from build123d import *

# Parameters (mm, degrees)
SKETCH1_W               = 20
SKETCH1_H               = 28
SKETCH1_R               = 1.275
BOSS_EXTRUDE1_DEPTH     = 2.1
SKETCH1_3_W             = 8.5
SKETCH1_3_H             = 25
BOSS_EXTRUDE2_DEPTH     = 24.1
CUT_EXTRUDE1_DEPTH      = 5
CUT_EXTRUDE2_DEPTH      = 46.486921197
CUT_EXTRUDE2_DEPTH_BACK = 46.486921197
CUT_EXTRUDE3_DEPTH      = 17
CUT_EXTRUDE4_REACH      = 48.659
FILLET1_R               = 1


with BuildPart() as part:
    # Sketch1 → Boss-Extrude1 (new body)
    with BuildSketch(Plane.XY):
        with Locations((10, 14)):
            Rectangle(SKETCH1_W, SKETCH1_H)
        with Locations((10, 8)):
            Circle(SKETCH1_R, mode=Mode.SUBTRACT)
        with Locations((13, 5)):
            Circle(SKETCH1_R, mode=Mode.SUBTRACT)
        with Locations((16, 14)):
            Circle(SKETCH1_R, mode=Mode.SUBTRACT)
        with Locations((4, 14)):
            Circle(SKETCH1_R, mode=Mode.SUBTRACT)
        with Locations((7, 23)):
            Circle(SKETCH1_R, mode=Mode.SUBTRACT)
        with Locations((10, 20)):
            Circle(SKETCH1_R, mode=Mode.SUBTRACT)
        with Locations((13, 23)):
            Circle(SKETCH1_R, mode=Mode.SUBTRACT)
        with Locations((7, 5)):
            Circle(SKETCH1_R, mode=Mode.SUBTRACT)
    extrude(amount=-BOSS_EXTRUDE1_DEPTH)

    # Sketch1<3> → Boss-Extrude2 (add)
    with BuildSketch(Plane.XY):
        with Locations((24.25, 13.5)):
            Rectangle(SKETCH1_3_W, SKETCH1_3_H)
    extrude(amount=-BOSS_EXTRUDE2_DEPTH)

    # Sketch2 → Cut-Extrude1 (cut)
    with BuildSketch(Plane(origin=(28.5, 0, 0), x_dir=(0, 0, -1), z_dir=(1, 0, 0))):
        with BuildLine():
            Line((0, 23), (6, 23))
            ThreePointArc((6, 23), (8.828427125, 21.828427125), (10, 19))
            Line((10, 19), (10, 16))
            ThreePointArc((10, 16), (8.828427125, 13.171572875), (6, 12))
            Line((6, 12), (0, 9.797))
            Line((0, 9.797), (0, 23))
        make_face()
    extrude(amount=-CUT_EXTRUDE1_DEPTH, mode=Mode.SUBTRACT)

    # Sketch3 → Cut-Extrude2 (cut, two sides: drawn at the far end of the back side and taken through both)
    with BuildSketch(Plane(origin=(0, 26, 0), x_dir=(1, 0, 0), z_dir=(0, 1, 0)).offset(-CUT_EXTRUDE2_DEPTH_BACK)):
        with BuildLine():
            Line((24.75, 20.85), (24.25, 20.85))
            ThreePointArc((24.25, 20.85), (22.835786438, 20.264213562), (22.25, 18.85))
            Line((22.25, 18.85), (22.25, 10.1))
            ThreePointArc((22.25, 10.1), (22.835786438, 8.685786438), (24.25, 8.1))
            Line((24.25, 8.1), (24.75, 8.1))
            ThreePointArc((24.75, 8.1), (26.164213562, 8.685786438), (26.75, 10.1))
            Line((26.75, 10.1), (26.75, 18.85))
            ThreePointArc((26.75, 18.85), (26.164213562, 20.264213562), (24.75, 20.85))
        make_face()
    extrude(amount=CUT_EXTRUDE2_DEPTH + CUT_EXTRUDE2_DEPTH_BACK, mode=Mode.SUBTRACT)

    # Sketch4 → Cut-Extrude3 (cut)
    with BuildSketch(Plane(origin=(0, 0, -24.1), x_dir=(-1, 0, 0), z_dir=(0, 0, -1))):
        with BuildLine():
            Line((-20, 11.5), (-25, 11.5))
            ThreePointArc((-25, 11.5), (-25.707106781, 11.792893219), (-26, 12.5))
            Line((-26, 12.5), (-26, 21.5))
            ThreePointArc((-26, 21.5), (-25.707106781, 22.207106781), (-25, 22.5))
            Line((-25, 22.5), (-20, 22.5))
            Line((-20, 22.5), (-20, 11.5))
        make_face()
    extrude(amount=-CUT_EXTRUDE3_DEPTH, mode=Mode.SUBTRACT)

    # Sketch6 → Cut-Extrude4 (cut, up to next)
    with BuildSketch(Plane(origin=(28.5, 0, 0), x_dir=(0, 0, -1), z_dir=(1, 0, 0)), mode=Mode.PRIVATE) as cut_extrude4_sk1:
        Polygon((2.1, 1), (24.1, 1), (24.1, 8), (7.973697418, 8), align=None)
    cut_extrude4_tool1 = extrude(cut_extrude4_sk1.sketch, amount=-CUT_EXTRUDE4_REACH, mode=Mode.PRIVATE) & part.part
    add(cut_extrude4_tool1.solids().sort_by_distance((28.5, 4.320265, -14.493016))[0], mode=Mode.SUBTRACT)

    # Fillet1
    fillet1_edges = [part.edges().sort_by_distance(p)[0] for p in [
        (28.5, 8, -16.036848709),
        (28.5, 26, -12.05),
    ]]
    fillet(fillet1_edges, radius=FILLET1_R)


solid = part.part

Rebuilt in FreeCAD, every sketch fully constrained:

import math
import FreeCAD as App
import Part
import Sketcher

V = App.Vector
Q = App.Units.Quantity


def edges_at(feature, points):
    """Names of the edges that pass closest to the given points."""
    edges = feature.Shape.Edges
    near = lambda p: min(range(len(edges)), key=lambda i: edges[i].distToShape(Part.Vertex(*p))[0])
    return sorted({f"Edge{near(p) + 1}" for p in points})


def add_polygon(sketch, points):
    """Adds a closed chain of lines whose ends are joined by coincident constraints."""
    first, n = sketch.GeometryCount, len(points)
    for a, b in zip(points, points[1:] + points[:1]):
        sketch.addGeometry(Part.LineSegment(App.Vector(*a, 0), App.Vector(*b, 0)), False)
    for i in range(n):
        sketch.addConstraint(Sketcher.Constraint("Coincident", first + i, 2, first + (i + 1) % n, 1))

doc = App.newDocument("Part")
body = doc.addObject("PartDesign::Body", "Body")

# Sketch on XY plane
sketch1 = body.newObject("Sketcher::SketchObject", "Sketch")
sketch1.AttachmentSupport = (doc.getObject("XY_Plane"), [""])
sketch1.MapMode = "FlatFace"
add_polygon(sketch1, [(0, 28), (0, 0), (20, 0), (20, 28)])  # lines 0-3
sketch1.addGeometry(Part.Circle(V(7, 5, 0), V(0, 0, 1), 1.3), False)  # 4
sketch1.addGeometry(Part.Circle(V(10, 8, 0), V(0, 0, 1), 1.3), False)  # 5
sketch1.addGeometry(Part.Circle(V(13, 5, 0), V(0, 0, 1), 1.3), False)  # 6
sketch1.addGeometry(Part.Circle(V(4, 14, 0), V(0, 0, 1), 1.3), False)  # 7
sketch1.addGeometry(Part.Circle(V(10, 20, 0), V(0, 0, 1), 1.3), False)  # 8
sketch1.addGeometry(Part.Circle(V(7, 23, 0), V(0, 0, 1), 1.3), False)  # 9
sketch1.addGeometry(Part.Circle(V(16, 14, 0), V(0, 0, 1), 1.3), False)  # 10
sketch1.addGeometry(Part.Circle(V(13, 23, 0), V(0, 0, 1), 1.3), False)  # 11
sketch1.addConstraint(Sketcher.Constraint("Vertical", 0))
sketch1.addConstraint(Sketcher.Constraint("Horizontal", 1))
sketch1.addConstraint(Sketcher.Constraint("Vertical", 2))
sketch1.addConstraint(Sketcher.Constraint("Horizontal", 3))
sketch1.addConstraint(Sketcher.Constraint("Coincident", 0, 2, -1, 1))
sketch1.addConstraint(Sketcher.Constraint("Equal", 4, 5))
sketch1.addConstraint(Sketcher.Constraint("Equal", 5, 6))
sketch1.addConstraint(Sketcher.Constraint("Equal", 6, 7))
sketch1.addConstraint(Sketcher.Constraint("Equal", 7, 8))
sketch1.addConstraint(Sketcher.Constraint("Equal", 8, 9))
sketch1.addConstraint(Sketcher.Constraint("Equal", 9, 10))
sketch1.addConstraint(Sketcher.Constraint("Equal", 10, 11))
sketch1.addConstraint(Sketcher.Constraint("Horizontal", 4, 3, 6, 3))
sketch1.addConstraint(Sketcher.Constraint("Horizontal", 7, 3, 10, 3))
sketch1.addConstraint(Sketcher.Constraint("Horizontal", 9, 3, 11, 3))
sketch1.addConstraint(Sketcher.Constraint("Vertical", 5, 3, 8, 3))
sketch1.addConstraint(Sketcher.Constraint("Vertical", 4, 3, 9, 3))
sketch1.addConstraint(Sketcher.Constraint("Vertical", 6, 3, 11, 3))
sketch1.addConstraint(Sketcher.Constraint("Diameter", 4, Q("2.55 mm")))
sketch1.addConstraint(Sketcher.Constraint("DistanceX", 1, 1, 1, 2, Q("20 mm")))
sketch1.addConstraint(Sketcher.Constraint("DistanceY", 0, 2, 0, 1, Q("28 mm")))
sketch1.addConstraint(Sketcher.Constraint("DistanceX", -1, 1, 4, 3, Q("7 mm")))
sketch1.addConstraint(Sketcher.Constraint("DistanceY", -1, 1, 4, 3, Q("5 mm")))
sketch1.addConstraint(Sketcher.Constraint("DistanceX", -1, 1, 5, 3, Q("10 mm")))
sketch1.addConstraint(Sketcher.Constraint("DistanceY", -1, 1, 5, 3, Q("8 mm")))
sketch1.addConstraint(Sketcher.Constraint("DistanceX", -1, 1, 6, 3, Q("13 mm")))
sketch1.addConstraint(Sketcher.Constraint("DistanceX", -1, 1, 7, 3, Q("4 mm")))
sketch1.addConstraint(Sketcher.Constraint("DistanceY", -1, 1, 7, 3, Q("14 mm")))
sketch1.addConstraint(Sketcher.Constraint("DistanceY", -1, 1, 8, 3, Q("20 mm")))
sketch1.addConstraint(Sketcher.Constraint("DistanceY", -1, 1, 9, 3, Q("23 mm")))
sketch1.addConstraint(Sketcher.Constraint("DistanceX", -1, 1, 10, 3, Q("16 mm")))
pad1 = body.newObject("PartDesign::Pad", "Pad")
pad1.Profile = sketch1
pad1.Length = 2.1
pad1.Reversed = True

# Sketch on XY plane
sketch2 = body.newObject("Sketcher::SketchObject", "Sketch001")
sketch2.AttachmentSupport = (doc.getObject("XY_Plane"), [""])
sketch2.MapMode = "FlatFace"
add_polygon(sketch2, [(20, 26), (20, 1), (28, 1), (28, 26)])  # lines 0-3
sketch2.addConstraint(Sketcher.Constraint("Vertical", 0))
sketch2.addConstraint(Sketcher.Constraint("Horizontal", 1))
sketch2.addConstraint(Sketcher.Constraint("Vertical", 2))
sketch2.addConstraint(Sketcher.Constraint("Horizontal", 3))
sketch2.addConstraint(Sketcher.Constraint("DistanceY", 0, 2, 0, 1, Q("25 mm")))
sketch2.addConstraint(Sketcher.Constraint("DistanceX", 1, 1, 1, 2, Q("8.5 mm")))
sketch2.addConstraint(Sketcher.Constraint("DistanceX", -1, 1, 0, 2, Q("20 mm")))
sketch2.addConstraint(Sketcher.Constraint("DistanceY", -1, 1, 0, 2, Q("1 mm")))
pad2 = body.newObject("PartDesign::Pad", "Pad001")
pad2.Profile = sketch2
pad2.Length = 24.1
pad2.Reversed = True

# Sketch on YZ plane
sketch3 = body.newObject("Sketcher::SketchObject", "Sketch002")
sketch3.AttachmentSupport = (doc.getObject("YZ_Plane"), [""])
sketch3.MapMode = "FlatFace"
sketch3.AttachmentOffset = App.Placement(V(0, 0, 28.5), App.Rotation())
sketch3.addGeometry(Part.LineSegment(V(23, -6, 0), V(23, 0, 0)), False)
sketch3.addGeometry(Part.LineSegment(V(23, 0, 0), V(9.8, 0, 0)), False)
sketch3.addGeometry(Part.LineSegment(V(9.8, 0, 0), V(12, -6, 0)), False)
sketch3.addGeometry(Part.ArcOfCircle(Part.Circle(V(16, -6, 0), V(0, 0, 1), 4), math.radians(180), math.radians(270)), False)
sketch3.addGeometry(Part.LineSegment(V(16, -10, 0), V(19, -10, 0)), False)
sketch3.addGeometry(Part.ArcOfCircle(Part.Circle(V(19, -6, 0), V(0, 0, 1), 4), math.radians(-90), math.radians(0)), False)
sketch3.addConstraint(Sketcher.Constraint("Coincident", 0, 2, 1, 1))
sketch3.addConstraint(Sketcher.Constraint("Coincident", 1, 2, 2, 1))
sketch3.addConstraint(Sketcher.Constraint("Coincident", 2, 2, 3, 1))
sketch3.addConstraint(Sketcher.Constraint("Tangent", 3, 2, 4, 1))
sketch3.addConstraint(Sketcher.Constraint("Tangent", 4, 2, 5, 1))
sketch3.addConstraint(Sketcher.Constraint("Tangent", 5, 2, 0, 1))
sketch3.addConstraint(Sketcher.Constraint("Vertical", 0))
sketch3.addConstraint(Sketcher.Constraint("Horizontal", 1))
sketch3.addConstraint(Sketcher.Constraint("Horizontal", 4))
sketch3.addConstraint(Sketcher.Constraint("Equal", 3, 5))
sketch3.addConstraint(Sketcher.Constraint("PointOnObject", 0, 2, -1))
sketch3.addConstraint(Sketcher.Constraint("Horizontal", 5, 3, 2, 2))
sketch3.addConstraint(Sketcher.Constraint("Radius", 3, Q("4 mm")))
sketch3.addConstraint(Sketcher.Constraint("DistanceX", 4, 1, 4, 2, Q("3 mm")))
sketch3.addConstraint(Sketcher.Constraint("DistanceY", 0, 1, 0, 2, Q("6 mm")))
sketch3.addConstraint(Sketcher.Constraint("DistanceX", -1, 1, 3, 3, Q("16 mm")))
sketch3.addConstraint(Sketcher.Constraint("DistanceX", 1, 2, 1, 1, Q("13.203 mm")))
pocket1 = body.newObject("PartDesign::Pocket", "Pocket")
pocket1.Profile = sketch3
pocket1.Length = 5

# Sketch on XZ plane
sketch4 = body.newObject("Sketcher::SketchObject", "Sketch003")
sketch4.AttachmentSupport = (doc.getObject("XZ_Plane"), [""])
sketch4.MapMode = "FlatFace"
sketch4.AttachmentOffset = App.Placement(V(0, 0, -26), App.Rotation())
sketch4.addGeometry(Part.LineSegment(V(24.8, -20.9, 0), V(24.2, -20.9, 0)), False)
sketch4.addGeometry(Part.ArcOfCircle(Part.Circle(V(24.3, -18.8, 0), V(0, 0, 1), 2), math.radians(-180), math.radians(-90)), False)
sketch4.addGeometry(Part.LineSegment(V(22.2, -18.9, 0), V(22.2, -10.1, 0)), False)
sketch4.addGeometry(Part.ArcOfCircle(Part.Circle(V(24.3, -10.1, 0), V(0, 0, 1), 2), math.radians(90), math.radians(180)), False)
sketch4.addGeometry(Part.LineSegment(V(24.2, -8.1, 0), V(24.8, -8.1, 0)), False)
sketch4.addGeometry(Part.ArcOfCircle(Part.Circle(V(24.7, -10.1, 0), V(0, 0, 1), 2), math.radians(0), math.radians(90)), False)
sketch4.addGeometry(Part.LineSegment(V(26.8, -10.1, 0), V(26.8, -18.9, 0)), False)
sketch4.addGeometry(Part.ArcOfCircle(Part.Circle(V(24.7, -18.8, 0), V(0, 0, 1), 2), math.radians(-90), math.radians(0)), False)
sketch4.addConstraint(Sketcher.Constraint("Tangent", 0, 2, 1, 2))
sketch4.addConstraint(Sketcher.Constraint("Tangent", 1, 1, 2, 1))
sketch4.addConstraint(Sketcher.Constraint("Tangent", 2, 2, 3, 2))
sketch4.addConstraint(Sketcher.Constraint("Tangent", 3, 1, 4, 1))
sketch4.addConstraint(Sketcher.Constraint("Tangent", 4, 2, 5, 2))
sketch4.addConstraint(Sketcher.Constraint("Tangent", 5, 1, 6, 1))
sketch4.addConstraint(Sketcher.Constraint("Tangent", 6, 2, 7, 2))
sketch4.addConstraint(Sketcher.Constraint("Tangent", 7, 1, 0, 1))
sketch4.addConstraint(Sketcher.Constraint("Horizontal", 0))
sketch4.addConstraint(Sketcher.Constraint("Vertical", 2))
sketch4.addConstraint(Sketcher.Constraint("Horizontal", 4))
sketch4.addConstraint(Sketcher.Constraint("Vertical", 6))
sketch4.addConstraint(Sketcher.Constraint("Equal", 1, 3))
sketch4.addConstraint(Sketcher.Constraint("Equal", 3, 5))
sketch4.addConstraint(Sketcher.Constraint("Equal", 5, 7))
sketch4.addConstraint(Sketcher.Constraint("Radius", 1, Q("2 mm")))
sketch4.addConstraint(Sketcher.Constraint("DistanceX", 0, 2, 0, 1, Q("0.5 mm")))
sketch4.addConstraint(Sketcher.Constraint("DistanceY", 2, 1, 2, 2, Q("8.75 mm")))
sketch4.addConstraint(Sketcher.Constraint("DistanceY", 3, 3, -1, 1, Q("10.1 mm")))
sketch4.addConstraint(Sketcher.Constraint("DistanceX", -1, 1, 1, 3, Q("24.25 mm")))
pocket2 = body.newObject("PartDesign::Pocket", "Pocket001")
pocket2.Profile = sketch4
pocket2.Type = "ThroughAll"
pocket2.Midplane = True

# Sketch on XY plane
sketch5 = body.newObject("Sketcher::SketchObject", "Sketch004")
sketch5.AttachmentSupport = (doc.getObject("XY_Plane"), [""])
sketch5.MapMode = "FlatFace"
sketch5.AttachmentOffset = App.Placement(V(0, 0, -24.1), App.Rotation())
sketch5.addGeometry(Part.LineSegment(V(25, 11.5, 0), V(20, 11.5, 0)), False)
sketch5.addGeometry(Part.LineSegment(V(20, 11.5, 0), V(20, 22.5, 0)), False)
sketch5.addGeometry(Part.LineSegment(V(20, 22.5, 0), V(25, 22.5, 0)), False)
sketch5.addGeometry(Part.ArcOfCircle(Part.Circle(V(25, 21.5, 0), V(0, 0, 1), 1), math.radians(0), math.radians(90)), False)
sketch5.addGeometry(Part.LineSegment(V(26, 21.5, 0), V(26, 12.5, 0)), False)
sketch5.addGeometry(Part.ArcOfCircle(Part.Circle(V(25, 12.5, 0), V(0, 0, 1), 1), math.radians(-90), math.radians(0)), False)
sketch5.addConstraint(Sketcher.Constraint("Coincident", 0, 2, 1, 1))
sketch5.addConstraint(Sketcher.Constraint("Coincident", 1, 2, 2, 1))
sketch5.addConstraint(Sketcher.Constraint("Tangent", 2, 2, 3, 2))
sketch5.addConstraint(Sketcher.Constraint("Tangent", 3, 1, 4, 1))
sketch5.addConstraint(Sketcher.Constraint("Tangent", 4, 2, 5, 2))
sketch5.addConstraint(Sketcher.Constraint("Tangent", 5, 1, 0, 1))
sketch5.addConstraint(Sketcher.Constraint("Horizontal", 0))
sketch5.addConstraint(Sketcher.Constraint("Vertical", 1))
sketch5.addConstraint(Sketcher.Constraint("Horizontal", 2))
sketch5.addConstraint(Sketcher.Constraint("Vertical", 4))
sketch5.addConstraint(Sketcher.Constraint("Equal", 3, 5))
sketch5.addConstraint(Sketcher.Constraint("Radius", 3, Q("1 mm")))
sketch5.addConstraint(Sketcher.Constraint("DistanceX", 0, 2, 0, 1, Q("5 mm")))
sketch5.addConstraint(Sketcher.Constraint("DistanceY", 1, 1, 1, 2, Q("11 mm")))
sketch5.addConstraint(Sketcher.Constraint("DistanceX", -1, 1, 3, 3, Q("25 mm")))
sketch5.addConstraint(Sketcher.Constraint("DistanceY", -1, 1, 3, 3, Q("21.5 mm")))
pocket3 = body.newObject("PartDesign::Pocket", "Pocket002")
pocket3.Profile = sketch5
pocket3.Length = 17
pocket3.Reversed = True

# Sketch on YZ plane
sketch6 = body.newObject("Sketcher::SketchObject", "Sketch005")
sketch6.AttachmentSupport = (doc.getObject("YZ_Plane"), [""])
sketch6.MapMode = "FlatFace"
sketch6.AttachmentOffset = App.Placement(V(0, 0, 28.5), App.Rotation())
add_polygon(sketch6, [(1, -2), (1, -24), (8, -24), (8, -8)])  # lines 0-3
sketch6.addConstraint(Sketcher.Constraint("Vertical", 0))
sketch6.addConstraint(Sketcher.Constraint("Horizontal", 1))
sketch6.addConstraint(Sketcher.Constraint("Vertical", 2))
sketch6.addConstraint(Sketcher.Constraint("DistanceX", 1, 1, 1, 2, Q("7 mm")))
sketch6.addConstraint(Sketcher.Constraint("DistanceY", 0, 2, 0, 1, Q("22 mm")))
sketch6.addConstraint(Sketcher.Constraint("Angle", 3, Q("140 deg")))
sketch6.addConstraint(Sketcher.Constraint("DistanceX", -1, 1, 0, 2, Q("1 mm")))
sketch6.addConstraint(Sketcher.Constraint("DistanceY", 0, 2, -1, 1, Q("24.1 mm")))
pocket4 = body.newObject("PartDesign::Pocket", "Pocket003")
pocket4.Profile = sketch6
pocket4.Length = 8.5
doc.recompute()

fillet = body.newObject("PartDesign::Fillet", "Fillet")
fillet.Base = (pocket4, edges_at(pocket4, [(28.5, 8, -16.037), (28.5, 26, -12.05)]))
fillet.Radius = 1

doc.recompute()
